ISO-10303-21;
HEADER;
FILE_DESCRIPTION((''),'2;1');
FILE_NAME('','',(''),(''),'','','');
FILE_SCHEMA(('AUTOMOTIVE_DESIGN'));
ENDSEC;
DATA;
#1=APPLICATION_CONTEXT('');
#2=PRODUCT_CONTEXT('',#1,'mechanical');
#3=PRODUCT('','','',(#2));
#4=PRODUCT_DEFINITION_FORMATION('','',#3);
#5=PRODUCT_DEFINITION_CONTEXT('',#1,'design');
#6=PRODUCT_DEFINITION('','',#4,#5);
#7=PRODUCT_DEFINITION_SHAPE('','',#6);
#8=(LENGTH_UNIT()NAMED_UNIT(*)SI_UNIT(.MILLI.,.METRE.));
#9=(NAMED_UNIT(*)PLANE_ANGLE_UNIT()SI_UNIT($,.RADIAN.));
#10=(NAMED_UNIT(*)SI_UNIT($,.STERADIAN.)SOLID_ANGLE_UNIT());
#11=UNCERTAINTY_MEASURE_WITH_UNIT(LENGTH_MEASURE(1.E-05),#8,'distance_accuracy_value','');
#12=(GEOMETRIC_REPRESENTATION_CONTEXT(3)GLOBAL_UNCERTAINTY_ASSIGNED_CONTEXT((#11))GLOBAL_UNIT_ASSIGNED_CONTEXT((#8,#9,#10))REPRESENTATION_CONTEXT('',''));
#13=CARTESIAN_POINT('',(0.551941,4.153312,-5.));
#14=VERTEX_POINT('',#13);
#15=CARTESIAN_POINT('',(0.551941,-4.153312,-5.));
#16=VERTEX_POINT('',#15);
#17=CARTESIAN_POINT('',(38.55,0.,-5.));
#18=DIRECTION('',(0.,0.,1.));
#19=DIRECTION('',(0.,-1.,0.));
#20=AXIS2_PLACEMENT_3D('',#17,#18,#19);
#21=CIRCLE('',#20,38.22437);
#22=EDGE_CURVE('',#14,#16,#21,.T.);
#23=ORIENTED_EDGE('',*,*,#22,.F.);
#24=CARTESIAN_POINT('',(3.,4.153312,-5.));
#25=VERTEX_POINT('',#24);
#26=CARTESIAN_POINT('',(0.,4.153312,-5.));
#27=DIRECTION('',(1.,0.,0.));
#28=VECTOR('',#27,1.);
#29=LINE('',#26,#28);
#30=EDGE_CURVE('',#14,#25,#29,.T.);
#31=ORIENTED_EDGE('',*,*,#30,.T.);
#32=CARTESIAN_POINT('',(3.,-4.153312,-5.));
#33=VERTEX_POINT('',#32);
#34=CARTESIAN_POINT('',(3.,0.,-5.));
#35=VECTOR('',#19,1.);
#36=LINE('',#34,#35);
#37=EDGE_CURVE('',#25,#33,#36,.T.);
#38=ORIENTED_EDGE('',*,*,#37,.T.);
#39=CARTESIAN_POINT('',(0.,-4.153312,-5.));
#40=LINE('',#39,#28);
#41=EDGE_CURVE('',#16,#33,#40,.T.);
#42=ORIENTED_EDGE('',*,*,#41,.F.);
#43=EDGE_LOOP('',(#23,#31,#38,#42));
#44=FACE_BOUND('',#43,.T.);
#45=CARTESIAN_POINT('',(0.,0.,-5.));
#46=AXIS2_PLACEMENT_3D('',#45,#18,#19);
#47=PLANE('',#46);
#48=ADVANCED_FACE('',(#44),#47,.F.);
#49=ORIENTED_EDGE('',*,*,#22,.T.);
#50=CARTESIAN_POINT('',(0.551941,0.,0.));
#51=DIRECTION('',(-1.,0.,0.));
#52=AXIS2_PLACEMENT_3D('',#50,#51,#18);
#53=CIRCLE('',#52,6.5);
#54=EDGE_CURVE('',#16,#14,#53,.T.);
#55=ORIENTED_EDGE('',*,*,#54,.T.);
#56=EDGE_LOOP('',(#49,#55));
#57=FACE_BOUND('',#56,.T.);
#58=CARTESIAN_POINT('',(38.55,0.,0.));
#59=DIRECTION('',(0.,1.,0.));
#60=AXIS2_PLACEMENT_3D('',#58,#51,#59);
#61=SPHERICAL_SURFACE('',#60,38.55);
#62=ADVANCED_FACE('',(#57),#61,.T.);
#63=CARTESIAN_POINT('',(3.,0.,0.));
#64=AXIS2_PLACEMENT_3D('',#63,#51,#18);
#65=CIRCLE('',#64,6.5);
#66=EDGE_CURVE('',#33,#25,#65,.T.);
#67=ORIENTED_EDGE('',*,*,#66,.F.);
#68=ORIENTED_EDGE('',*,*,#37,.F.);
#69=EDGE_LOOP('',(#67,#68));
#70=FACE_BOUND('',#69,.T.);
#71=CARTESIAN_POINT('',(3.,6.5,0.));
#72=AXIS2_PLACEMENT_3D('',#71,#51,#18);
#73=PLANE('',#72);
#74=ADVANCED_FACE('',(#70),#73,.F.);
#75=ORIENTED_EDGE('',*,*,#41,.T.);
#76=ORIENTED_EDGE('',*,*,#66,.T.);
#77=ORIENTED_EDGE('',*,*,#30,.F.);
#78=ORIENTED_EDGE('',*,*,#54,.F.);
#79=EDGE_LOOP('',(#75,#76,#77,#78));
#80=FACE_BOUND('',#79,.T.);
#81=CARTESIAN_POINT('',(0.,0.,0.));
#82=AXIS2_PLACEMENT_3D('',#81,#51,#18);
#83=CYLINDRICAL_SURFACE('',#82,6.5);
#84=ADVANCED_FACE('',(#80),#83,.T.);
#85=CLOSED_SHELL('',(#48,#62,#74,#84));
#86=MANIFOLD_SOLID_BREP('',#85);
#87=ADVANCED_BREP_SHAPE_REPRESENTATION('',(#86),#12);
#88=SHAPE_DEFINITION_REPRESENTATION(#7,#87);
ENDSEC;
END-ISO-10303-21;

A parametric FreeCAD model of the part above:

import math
import FreeCAD as App
import Part
import Sketcher

V = App.Vector


def add_polygon(sketch, points):
    """Adds a closed chain of lines whose ends are joined by coincident constraints."""
    first, n = sketch.GeometryCount, len(points)
    for a, b in zip(points, points[1:] + points[:1]):
        sketch.addGeometry(Part.LineSegment(App.Vector(*a, 0), App.Vector(*b, 0)), False)
    for i in range(n):
        sketch.addConstraint(Sketcher.Constraint("Coincident", first + i, 2, first + (i + 1) % n, 1))

doc = App.newDocument("Part")
body = doc.addObject("PartDesign::Body", "Body")

# Sketch on XY plane
sketch1 = doc.addObject("Sketcher::SketchObject", "Sketch")
body.addObject(sketch1)
sketch1.AttachmentSupport = (doc.XY_Plane, [""])
sketch1.MapMode = "FlatFace"
sketch1.addGeometry(Part.LineSegment(V(3, 6.5, 0), V(0.6, 6.5, 0)), False)
sketch1.addGeometry(Part.ArcOfCircle(Part.Circle(V(38.6, 0, 0), V(0, 0, 1), 38.6), math.radians(170.29), math.radians(180)), False)
sketch1.addGeometry(Part.LineSegment(V(0, 0, 0), V(3, 0, 0)), False)
sketch1.addGeometry(Part.LineSegment(V(3, 0, 0), V(3, 6.5, 0)), False)
sketch1.addConstraint(Sketcher.Constraint("Coincident", 0, 2, 1, 1))
sketch1.addConstraint(Sketcher.Constraint("Coincident", 1, 2, 2, 1))
sketch1.addConstraint(Sketcher.Constraint("Coincident", 2, 2, 3, 1))
sketch1.addConstraint(Sketcher.Constraint("Coincident", 3, 2, 0, 1))
sketch1.addConstraint(Sketcher.Constraint("Horizontal", 0))
sketch1.addConstraint(Sketcher.Constraint("Horizontal", 2))
sketch1.addConstraint(Sketcher.Constraint("Vertical", 3))
sketch1.addConstraint(Sketcher.Constraint("Coincident", 1, 2, -1, 1))
sketch1.addConstraint(Sketcher.Constraint("PointOnObject", 1, 3, -1))
sketch1.addConstraint(Sketcher.Constraint("DistanceX", 2, 1, 2, 2, 3.0))
sketch1.addConstraint(Sketcher.Constraint("Radius", 1, 38.55))
sketch1.addConstraint(Sketcher.Constraint("DistanceY", 3, 1, 3, 2, 6.5))
revolution = doc.addObject("PartDesign::Revolution", "Revolution")
body.addObject(revolution)
revolution.Profile = sketch1
revolution.ReferenceAxis = (sketch1, ["H_Axis"])
revolution.Angle = 360

# Sketch on YZ plane
sketch2 = doc.addObject("Sketcher::SketchObject", "Sketch001")
body.addObject(sketch2)
sketch2.AttachmentSupport = (doc.YZ_Plane, [""])
sketch2.MapMode = "FlatFace"
sketch2.AttachmentOffset = App.Placement(V(0, 0, 3), App.Rotation())
add_polygon(sketch2, [(46, -5), (-46, -5), (-46, -88), (46, -88)])  # lines 0-3
sketch2.addConstraint(Sketcher.Constraint("Horizontal", 0))
sketch2.addConstraint(Sketcher.Constraint("Vertical", 1))
sketch2.addConstraint(Sketcher.Constraint("Horizontal", 2))
sketch2.addConstraint(Sketcher.Constraint("Vertical", 3))
sketch2.addConstraint(Sketcher.Constraint("DistanceY", 0, 2, -1, 1, 5.0))
sketch2.addConstraint(Sketcher.Constraint("DistanceX", 0, 2, 0, 1, 91.011399))
sketch2.addConstraint(Sketcher.Constraint("DistanceX", 0, 2, -1, 1, 45.5057))
sketch2.addConstraint(Sketcher.Constraint("DistanceY", 1, 2, 1, 1, 82.704776))
pocket1 = doc.addObject("PartDesign::Pocket", "Pocket")
body.addObject(pocket1)
pocket1.Profile = sketch2
pocket1.Type = "ThroughAll"

doc.recompute()
